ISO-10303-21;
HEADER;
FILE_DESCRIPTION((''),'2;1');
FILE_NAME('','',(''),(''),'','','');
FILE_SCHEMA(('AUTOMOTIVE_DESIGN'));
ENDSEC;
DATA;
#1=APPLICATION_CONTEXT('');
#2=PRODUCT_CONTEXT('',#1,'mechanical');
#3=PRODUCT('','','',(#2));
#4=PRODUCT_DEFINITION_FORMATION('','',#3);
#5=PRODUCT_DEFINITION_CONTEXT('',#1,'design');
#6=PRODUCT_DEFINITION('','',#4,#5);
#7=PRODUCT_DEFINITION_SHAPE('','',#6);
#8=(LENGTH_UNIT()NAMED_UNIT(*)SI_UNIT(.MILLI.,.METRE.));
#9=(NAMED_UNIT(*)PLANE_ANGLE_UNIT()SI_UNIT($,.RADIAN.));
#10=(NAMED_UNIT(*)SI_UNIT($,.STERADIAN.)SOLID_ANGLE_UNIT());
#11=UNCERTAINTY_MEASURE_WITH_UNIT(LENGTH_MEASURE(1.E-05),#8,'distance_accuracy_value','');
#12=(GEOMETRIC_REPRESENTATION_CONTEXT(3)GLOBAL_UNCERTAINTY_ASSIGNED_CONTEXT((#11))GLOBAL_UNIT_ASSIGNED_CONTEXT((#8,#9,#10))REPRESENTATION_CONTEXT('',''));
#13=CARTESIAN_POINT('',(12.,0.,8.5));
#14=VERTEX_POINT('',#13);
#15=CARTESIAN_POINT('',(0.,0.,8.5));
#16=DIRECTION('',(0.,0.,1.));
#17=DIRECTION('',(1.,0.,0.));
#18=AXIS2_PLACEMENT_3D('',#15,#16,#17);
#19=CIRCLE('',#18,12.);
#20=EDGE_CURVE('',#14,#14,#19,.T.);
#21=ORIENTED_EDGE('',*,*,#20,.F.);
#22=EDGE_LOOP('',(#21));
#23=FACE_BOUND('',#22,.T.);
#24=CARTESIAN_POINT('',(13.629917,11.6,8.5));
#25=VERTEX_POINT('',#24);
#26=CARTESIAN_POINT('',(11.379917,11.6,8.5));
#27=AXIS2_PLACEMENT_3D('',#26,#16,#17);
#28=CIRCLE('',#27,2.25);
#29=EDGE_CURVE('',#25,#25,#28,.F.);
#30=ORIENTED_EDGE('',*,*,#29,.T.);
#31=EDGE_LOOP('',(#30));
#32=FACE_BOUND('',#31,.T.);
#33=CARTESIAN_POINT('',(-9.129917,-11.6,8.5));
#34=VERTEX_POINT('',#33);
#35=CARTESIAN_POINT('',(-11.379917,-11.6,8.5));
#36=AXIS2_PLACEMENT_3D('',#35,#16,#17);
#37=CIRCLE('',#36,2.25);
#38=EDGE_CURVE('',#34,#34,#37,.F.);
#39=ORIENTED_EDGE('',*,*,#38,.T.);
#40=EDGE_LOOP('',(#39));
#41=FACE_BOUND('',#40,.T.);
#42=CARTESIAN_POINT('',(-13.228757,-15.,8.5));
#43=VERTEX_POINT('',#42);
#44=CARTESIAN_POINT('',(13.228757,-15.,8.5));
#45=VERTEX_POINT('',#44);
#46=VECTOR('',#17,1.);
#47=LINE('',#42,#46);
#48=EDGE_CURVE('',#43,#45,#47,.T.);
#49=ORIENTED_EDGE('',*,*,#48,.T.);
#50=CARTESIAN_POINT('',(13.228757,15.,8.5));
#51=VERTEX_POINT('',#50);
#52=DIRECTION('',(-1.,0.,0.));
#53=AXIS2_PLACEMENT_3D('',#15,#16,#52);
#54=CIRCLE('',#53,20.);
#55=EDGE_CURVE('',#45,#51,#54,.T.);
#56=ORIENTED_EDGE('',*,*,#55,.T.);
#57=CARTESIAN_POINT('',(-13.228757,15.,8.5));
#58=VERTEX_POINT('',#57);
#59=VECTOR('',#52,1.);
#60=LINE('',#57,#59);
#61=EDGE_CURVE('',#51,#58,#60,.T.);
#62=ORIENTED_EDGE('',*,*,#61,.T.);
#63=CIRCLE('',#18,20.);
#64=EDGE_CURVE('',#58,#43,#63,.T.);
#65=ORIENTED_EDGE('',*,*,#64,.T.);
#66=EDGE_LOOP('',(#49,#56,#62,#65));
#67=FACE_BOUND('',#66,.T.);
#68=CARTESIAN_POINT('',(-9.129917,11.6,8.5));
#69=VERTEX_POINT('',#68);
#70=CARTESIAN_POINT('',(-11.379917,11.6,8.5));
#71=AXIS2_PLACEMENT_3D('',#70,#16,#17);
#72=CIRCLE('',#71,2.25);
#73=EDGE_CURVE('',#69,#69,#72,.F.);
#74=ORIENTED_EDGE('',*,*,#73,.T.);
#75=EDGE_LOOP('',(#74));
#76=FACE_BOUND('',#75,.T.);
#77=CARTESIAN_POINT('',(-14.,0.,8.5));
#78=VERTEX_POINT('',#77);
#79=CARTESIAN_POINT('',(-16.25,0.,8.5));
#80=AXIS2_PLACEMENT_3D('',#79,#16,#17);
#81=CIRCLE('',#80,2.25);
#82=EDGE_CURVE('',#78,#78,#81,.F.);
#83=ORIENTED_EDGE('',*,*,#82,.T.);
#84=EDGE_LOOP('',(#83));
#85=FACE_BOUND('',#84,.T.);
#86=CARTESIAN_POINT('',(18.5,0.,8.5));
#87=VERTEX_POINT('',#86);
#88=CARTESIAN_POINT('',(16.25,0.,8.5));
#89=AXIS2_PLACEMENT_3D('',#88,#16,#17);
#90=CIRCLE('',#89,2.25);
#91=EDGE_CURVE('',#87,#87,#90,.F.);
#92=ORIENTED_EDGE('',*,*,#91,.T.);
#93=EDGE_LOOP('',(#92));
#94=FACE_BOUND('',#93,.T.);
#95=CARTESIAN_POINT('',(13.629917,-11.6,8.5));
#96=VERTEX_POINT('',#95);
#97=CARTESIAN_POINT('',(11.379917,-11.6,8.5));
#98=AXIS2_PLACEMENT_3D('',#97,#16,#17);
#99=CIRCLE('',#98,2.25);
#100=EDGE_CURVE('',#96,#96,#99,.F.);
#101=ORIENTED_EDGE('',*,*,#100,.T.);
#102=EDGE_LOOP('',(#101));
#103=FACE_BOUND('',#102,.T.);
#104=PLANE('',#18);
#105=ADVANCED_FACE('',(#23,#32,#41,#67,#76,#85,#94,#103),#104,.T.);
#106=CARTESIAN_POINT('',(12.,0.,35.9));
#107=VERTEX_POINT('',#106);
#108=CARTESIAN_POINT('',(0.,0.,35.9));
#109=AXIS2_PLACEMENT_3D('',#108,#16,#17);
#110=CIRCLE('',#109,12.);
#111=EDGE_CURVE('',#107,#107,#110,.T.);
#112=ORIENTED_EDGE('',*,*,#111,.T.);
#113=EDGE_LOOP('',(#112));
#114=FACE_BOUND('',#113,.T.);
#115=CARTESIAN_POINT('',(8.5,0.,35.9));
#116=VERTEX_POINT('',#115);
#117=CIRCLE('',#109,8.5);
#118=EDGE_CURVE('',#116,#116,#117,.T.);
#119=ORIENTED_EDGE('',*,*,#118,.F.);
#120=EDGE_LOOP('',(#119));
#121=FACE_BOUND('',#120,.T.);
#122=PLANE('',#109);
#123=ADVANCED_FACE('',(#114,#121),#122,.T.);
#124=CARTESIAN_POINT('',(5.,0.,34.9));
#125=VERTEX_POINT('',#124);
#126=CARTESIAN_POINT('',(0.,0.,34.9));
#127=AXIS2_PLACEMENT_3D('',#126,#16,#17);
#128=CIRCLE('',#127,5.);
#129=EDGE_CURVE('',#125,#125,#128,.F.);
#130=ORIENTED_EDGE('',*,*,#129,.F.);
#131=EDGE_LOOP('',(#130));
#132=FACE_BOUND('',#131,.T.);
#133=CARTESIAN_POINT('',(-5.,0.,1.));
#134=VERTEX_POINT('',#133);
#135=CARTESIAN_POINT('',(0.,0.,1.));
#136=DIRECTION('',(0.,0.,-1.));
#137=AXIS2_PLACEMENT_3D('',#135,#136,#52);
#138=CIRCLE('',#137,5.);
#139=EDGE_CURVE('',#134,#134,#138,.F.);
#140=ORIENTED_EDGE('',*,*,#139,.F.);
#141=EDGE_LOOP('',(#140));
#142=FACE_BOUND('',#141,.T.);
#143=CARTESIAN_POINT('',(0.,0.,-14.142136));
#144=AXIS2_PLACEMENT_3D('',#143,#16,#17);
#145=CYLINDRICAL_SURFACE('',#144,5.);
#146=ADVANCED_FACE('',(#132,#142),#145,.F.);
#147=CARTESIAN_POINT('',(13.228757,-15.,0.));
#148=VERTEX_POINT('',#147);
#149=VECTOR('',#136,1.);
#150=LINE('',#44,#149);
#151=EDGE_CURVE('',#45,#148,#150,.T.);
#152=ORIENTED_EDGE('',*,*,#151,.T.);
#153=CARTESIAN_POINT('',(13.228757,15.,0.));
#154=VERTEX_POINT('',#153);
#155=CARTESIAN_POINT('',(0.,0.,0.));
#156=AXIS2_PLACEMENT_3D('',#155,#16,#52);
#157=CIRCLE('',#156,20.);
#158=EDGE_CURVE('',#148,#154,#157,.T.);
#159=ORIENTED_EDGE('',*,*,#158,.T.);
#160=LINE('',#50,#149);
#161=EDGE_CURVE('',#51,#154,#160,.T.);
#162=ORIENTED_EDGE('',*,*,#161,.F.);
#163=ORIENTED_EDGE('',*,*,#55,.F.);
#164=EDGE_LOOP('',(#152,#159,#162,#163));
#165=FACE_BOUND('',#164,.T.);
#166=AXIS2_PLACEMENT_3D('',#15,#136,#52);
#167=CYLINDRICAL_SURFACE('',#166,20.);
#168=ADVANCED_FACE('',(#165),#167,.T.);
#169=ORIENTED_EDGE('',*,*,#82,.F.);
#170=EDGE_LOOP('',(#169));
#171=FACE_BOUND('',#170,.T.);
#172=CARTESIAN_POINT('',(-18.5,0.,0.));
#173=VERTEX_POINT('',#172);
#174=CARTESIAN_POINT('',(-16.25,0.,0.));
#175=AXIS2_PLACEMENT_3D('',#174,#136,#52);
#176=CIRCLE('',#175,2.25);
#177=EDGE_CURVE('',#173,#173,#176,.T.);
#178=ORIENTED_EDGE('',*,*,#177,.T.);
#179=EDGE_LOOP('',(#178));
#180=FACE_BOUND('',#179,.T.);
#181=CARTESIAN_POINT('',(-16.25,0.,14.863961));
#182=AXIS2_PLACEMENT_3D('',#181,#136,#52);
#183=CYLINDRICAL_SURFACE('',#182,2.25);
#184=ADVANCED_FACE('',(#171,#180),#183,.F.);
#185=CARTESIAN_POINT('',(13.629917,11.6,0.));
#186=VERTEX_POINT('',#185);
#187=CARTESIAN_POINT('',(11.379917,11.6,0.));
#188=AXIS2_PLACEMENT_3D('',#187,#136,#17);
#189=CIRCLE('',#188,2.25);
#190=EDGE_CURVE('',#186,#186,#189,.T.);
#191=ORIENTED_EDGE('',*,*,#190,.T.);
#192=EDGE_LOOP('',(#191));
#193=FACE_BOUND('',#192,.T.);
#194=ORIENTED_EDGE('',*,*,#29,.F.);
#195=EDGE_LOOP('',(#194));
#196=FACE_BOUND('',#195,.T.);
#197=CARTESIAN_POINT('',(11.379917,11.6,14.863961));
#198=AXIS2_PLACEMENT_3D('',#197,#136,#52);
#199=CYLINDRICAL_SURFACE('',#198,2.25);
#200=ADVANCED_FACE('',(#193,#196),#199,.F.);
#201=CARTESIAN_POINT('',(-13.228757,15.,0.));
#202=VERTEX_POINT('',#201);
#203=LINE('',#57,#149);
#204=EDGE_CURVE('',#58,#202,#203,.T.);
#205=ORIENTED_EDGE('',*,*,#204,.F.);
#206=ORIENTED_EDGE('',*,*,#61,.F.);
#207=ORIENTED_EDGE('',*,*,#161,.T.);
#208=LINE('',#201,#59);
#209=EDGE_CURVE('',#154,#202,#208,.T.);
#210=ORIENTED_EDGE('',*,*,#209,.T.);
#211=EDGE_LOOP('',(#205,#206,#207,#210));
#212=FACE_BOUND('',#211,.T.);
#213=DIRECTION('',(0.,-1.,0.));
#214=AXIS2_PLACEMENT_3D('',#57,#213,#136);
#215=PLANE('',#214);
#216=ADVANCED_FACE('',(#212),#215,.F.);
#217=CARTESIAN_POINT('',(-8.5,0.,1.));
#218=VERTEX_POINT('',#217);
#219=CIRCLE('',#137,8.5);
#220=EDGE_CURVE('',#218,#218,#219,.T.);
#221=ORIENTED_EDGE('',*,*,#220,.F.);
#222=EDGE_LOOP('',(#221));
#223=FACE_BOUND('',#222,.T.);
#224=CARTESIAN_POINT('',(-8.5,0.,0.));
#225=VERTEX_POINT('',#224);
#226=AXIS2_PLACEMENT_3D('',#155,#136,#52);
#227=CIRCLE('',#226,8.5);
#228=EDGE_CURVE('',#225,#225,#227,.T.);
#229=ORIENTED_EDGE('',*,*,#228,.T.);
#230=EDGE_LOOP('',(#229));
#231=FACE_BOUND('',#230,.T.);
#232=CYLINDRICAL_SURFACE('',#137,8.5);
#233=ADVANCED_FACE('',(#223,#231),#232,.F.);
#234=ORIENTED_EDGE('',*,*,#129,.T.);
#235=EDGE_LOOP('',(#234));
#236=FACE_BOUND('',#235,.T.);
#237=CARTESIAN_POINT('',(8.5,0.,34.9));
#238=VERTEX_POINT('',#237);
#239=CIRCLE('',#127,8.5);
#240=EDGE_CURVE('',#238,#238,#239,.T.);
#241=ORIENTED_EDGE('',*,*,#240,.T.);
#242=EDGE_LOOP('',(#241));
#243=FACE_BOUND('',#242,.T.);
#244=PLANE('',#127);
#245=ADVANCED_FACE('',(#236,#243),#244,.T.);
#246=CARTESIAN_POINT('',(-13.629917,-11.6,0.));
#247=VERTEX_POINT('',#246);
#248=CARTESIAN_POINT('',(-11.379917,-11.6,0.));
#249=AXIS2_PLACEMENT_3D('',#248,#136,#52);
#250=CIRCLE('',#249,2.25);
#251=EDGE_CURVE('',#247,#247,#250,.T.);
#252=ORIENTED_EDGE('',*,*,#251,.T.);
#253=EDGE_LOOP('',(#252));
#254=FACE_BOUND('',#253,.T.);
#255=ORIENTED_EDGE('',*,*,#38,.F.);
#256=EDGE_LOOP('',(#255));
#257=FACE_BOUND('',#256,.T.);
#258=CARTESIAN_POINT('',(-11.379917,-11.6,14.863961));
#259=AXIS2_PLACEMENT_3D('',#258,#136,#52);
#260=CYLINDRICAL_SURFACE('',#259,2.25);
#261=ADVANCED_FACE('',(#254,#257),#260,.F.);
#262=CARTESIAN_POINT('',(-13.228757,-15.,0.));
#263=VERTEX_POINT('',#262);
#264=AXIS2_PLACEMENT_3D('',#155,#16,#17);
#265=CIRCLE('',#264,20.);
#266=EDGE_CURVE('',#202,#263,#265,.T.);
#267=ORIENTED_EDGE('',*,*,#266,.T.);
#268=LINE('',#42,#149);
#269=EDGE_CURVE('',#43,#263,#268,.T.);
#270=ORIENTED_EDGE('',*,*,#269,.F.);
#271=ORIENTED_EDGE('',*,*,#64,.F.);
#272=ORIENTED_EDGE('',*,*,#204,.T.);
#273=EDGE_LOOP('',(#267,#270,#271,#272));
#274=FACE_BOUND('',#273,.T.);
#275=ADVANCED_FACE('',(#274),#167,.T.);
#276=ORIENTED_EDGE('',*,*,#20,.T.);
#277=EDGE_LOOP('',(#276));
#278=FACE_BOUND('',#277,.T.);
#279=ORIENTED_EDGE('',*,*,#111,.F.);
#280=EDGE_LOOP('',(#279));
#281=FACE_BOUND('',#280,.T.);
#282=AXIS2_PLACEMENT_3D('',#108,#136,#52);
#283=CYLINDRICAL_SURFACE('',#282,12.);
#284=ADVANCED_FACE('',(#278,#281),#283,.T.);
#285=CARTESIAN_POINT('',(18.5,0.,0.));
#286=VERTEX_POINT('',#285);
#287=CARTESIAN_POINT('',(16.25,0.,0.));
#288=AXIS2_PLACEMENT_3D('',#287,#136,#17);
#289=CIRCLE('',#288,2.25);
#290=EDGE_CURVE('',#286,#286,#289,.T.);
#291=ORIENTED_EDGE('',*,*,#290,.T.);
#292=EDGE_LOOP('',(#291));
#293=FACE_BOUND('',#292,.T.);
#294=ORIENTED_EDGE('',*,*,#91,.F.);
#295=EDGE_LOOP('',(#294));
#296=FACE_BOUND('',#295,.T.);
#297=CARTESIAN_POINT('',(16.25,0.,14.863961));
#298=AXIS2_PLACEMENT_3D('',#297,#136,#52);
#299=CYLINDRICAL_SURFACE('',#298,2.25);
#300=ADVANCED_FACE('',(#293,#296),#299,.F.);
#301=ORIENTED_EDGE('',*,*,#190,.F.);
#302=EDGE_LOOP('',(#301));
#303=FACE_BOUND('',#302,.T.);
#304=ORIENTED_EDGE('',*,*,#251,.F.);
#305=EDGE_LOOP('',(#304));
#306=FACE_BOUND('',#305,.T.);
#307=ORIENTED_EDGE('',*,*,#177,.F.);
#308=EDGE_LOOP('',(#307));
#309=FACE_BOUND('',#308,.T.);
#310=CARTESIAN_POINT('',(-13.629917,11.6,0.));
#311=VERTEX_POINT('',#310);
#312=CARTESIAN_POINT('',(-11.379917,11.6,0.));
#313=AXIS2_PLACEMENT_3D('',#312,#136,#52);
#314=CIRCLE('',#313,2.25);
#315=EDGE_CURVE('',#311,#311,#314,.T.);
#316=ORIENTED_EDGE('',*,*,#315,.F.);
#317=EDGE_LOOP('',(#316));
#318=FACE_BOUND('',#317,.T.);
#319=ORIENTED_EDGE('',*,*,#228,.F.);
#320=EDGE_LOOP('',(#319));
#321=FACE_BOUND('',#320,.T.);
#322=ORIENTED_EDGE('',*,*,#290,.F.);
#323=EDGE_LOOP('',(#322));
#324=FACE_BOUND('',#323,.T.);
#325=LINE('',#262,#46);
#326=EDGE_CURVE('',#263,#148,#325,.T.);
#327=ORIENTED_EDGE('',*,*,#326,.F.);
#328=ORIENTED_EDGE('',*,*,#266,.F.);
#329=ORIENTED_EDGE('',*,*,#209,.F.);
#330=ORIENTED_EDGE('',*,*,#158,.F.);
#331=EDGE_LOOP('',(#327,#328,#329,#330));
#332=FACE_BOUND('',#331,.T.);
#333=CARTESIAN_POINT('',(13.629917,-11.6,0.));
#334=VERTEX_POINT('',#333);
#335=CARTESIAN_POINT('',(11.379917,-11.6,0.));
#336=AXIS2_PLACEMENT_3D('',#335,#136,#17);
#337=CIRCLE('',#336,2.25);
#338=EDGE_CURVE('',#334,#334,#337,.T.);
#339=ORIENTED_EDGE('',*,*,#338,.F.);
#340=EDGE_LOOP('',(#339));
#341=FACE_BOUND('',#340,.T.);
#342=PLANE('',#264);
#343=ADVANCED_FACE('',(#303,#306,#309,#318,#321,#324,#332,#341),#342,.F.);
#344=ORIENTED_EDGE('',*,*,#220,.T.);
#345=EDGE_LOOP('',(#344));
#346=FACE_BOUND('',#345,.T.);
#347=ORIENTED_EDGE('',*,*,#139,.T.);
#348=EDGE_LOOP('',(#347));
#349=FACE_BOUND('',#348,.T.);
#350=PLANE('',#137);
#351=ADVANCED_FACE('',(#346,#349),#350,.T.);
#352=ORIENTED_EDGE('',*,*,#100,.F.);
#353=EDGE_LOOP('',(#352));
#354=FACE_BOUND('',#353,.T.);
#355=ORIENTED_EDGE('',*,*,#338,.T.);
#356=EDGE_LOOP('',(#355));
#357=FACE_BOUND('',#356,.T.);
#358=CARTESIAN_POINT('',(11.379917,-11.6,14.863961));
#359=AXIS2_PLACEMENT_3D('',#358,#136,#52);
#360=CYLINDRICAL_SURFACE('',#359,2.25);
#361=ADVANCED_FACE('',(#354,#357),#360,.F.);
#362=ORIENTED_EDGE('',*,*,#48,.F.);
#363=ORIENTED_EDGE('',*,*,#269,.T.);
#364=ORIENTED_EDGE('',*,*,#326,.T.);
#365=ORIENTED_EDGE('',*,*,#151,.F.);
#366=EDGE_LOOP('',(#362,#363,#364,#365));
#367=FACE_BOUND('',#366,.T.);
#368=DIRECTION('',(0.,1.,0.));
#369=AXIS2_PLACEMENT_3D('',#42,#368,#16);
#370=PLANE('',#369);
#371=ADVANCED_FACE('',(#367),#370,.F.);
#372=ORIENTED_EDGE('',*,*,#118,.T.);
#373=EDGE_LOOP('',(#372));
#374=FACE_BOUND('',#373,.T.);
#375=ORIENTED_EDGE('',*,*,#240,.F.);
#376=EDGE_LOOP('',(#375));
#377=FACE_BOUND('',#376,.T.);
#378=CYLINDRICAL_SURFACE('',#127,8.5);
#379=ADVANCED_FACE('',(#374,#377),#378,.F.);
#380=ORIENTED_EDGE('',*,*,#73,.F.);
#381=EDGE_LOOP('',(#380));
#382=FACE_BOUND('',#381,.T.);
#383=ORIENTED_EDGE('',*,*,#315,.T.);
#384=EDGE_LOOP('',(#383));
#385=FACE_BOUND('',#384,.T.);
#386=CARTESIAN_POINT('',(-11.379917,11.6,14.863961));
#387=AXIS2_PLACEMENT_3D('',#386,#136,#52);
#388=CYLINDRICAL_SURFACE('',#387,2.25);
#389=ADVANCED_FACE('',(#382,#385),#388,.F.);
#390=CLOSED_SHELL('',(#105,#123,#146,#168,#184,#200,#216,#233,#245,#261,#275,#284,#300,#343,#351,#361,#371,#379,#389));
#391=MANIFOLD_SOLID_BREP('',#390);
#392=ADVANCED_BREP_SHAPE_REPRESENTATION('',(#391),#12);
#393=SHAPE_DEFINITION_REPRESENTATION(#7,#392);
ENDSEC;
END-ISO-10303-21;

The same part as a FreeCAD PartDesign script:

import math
import FreeCAD as App
import Part
import Sketcher

V = App.Vector

doc = App.newDocument("Part")
body = doc.addObject("PartDesign::Body", "Body")

# Sketch on XY plane
sketch1 = body.newObject("Sketcher::SketchObject", "Sketch")
sketch1.AttachmentSupport = (doc.getObject("XY_Plane"), [""])
sketch1.MapMode = "FlatFace"
sketch1.addGeometry(Part.LineSegment(V(13, 15, 0), V(-13, 15, 0)), False)
sketch1.addGeometry(Part.ArcOfCircle(Part.Circle(V(0, 0, 0), V(0, 0, 1), 20), math.radians(131), math.radians(229)), False)
sketch1.addGeometry(Part.LineSegment(V(-13, -15, 0), V(13, -15, 0)), False)
sketch1.addGeometry(Part.ArcOfCircle(Part.Circle(V(0, 0, 0), V(0, 0, 1), 20), math.radians(-49), math.radians(49)), False)
sketch1.addConstraint(Sketcher.Constraint("Coincident", 0, 2, 1, 1))
sketch1.addConstraint(Sketcher.Constraint("Coincident", 1, 2, 2, 1))
sketch1.addConstraint(Sketcher.Constraint("Coincident", 2, 2, 3, 1))
sketch1.addConstraint(Sketcher.Constraint("Coincident", 3, 2, 0, 1))
sketch1.addConstraint(Sketcher.Constraint("Horizontal", 0))
sketch1.addConstraint(Sketcher.Constraint("Horizontal", 2))
sketch1.addConstraint(Sketcher.Constraint("Coincident", 1, 3, -1, 1))
sketch1.addConstraint(Sketcher.Constraint("Coincident", 3, 3, -1, 1))
sketch1.addConstraint(Sketcher.Constraint("Equal", 1, 3))
sketch1.addConstraint(Sketcher.Constraint("Vertical", 0, 2, 1, 2))
sketch1.addConstraint(Sketcher.Constraint("Radius", 1, 20.0))
sketch1.addConstraint(Sketcher.Constraint("DistanceY", -1, 1, 0, 2, 15.0))
pad1 = body.newObject("PartDesign::Pad", "Pad")
pad1.Profile = sketch1
pad1.Length = 8.5

# Sketch on XY plane
sketch2 = body.newObject("Sketcher::SketchObject", "Sketch001")
sketch2.AttachmentSupport = (doc.getObject("XY_Plane"), [""])
sketch2.MapMode = "FlatFace"
sketch2.AttachmentOffset = App.Placement(V(0, 0, 8.5), App.Rotation())
sketch2.addGeometry(Part.Circle(V(0, 0, 0), V(0, 0, 1), 12), False)
sketch2.addConstraint(Sketcher.Constraint("Coincident", 0, 3, -1, 1))
sketch2.addConstraint(Sketcher.Constraint("Diameter", 0, 24.0))
pad2 = body.newObject("PartDesign::Pad", "Pad001")
pad2.Profile = sketch2
pad2.Length = 27.4

# Sketch on XY plane
sketch3 = body.newObject("Sketcher::SketchObject", "Sketch002")
sketch3.AttachmentSupport = (doc.getObject("XY_Plane"), [""])
sketch3.MapMode = "FlatFace"
sketch3.AttachmentOffset = App.Placement(V(0, 0, 35.9), App.Rotation())
sketch3.addGeometry(Part.Circle(V(0, 0, 0), V(0, 0, 1), 5), False)
sketch3.addConstraint(Sketcher.Constraint("Coincident", 0, 3, -1, 1))
sketch3.addConstraint(Sketcher.Constraint("Diameter", 0, 10.0))
pocket1 = body.newObject("PartDesign::Pocket", "Pocket")
pocket1.Profile = sketch3
pocket1.Length = 35.9

# Sketch on XY plane
sketch4 = body.newObject("Sketcher::SketchObject", "Sketch003")
sketch4.AttachmentSupport = (doc.getObject("XY_Plane"), [""])
sketch4.MapMode = "FlatFace"
sketch4.AttachmentOffset = App.Placement(V(0, 0, 35.9), App.Rotation())
sketch4.addGeometry(Part.Circle(V(0, 0, 0), V(0, 0, 1), 8), False)
sketch4.addConstraint(Sketcher.Constraint("Coincident", 0, 3, -1, 1))
sketch4.addConstraint(Sketcher.Constraint("Diameter", 0, 17.0))
pocket2 = body.newObject("PartDesign::Pocket", "Pocket001")
pocket2.Profile = sketch4
pocket2.Length = 1

# Sketch on XY plane
sketch5 = body.newObject("Sketcher::SketchObject", "Sketch004")
sketch5.AttachmentSupport = (doc.getObject("XY_Plane"), [""])
sketch5.MapMode = "FlatFace"
sketch5.addGeometry(Part.Circle(V(0, 0, 0), V(0, 0, 1), 8), False)
sketch5.addConstraint(Sketcher.Constraint("Coincident", 0, 3, -1, 1))
sketch5.addConstraint(Sketcher.Constraint("Diameter", 0, 17.0))
pocket3 = body.newObject("PartDesign::Pocket", "Pocket002")
pocket3.Profile = sketch5
pocket3.Length = 1
pocket3.Reversed = True

# Sketch on XY plane
sketch6 = body.newObject("Sketcher::SketchObject", "Sketch005")
sketch6.AttachmentSupport = (doc.getObject("XY_Plane"), [""])
sketch6.MapMode = "FlatFace"
sketch6.addGeometry(Part.Circle(V(-11.4, -11.6, 0), V(0, 0, 1), 2.2), False)
sketch6.addGeometry(Part.Circle(V(-16.2, 0, 0), V(0, 0, 1), 2.2), False)
sketch6.addGeometry(Part.Circle(V(-11.4, 11.6, 0), V(0, 0, 1), 2.2), False)
sketch6.addGeometry(Part.Circle(V(11.4, -11.6, 0), V(0, 0, 1), 2.2), False)
sketch6.addGeometry(Part.Circle(V(16.2, 0, 0), V(0, 0, 1), 2.2), False)
sketch6.addGeometry(Part.Circle(V(11.4, 11.6, 0), V(0, 0, 1), 2.2), False)
sketch6.addConstraint(Sketcher.Constraint("Equal", 0, 1))
sketch6.addConstraint(Sketcher.Constraint("Equal", 1, 2))
sketch6.addConstraint(Sketcher.Constraint("Equal", 2, 3))
sketch6.addConstraint(Sketcher.Constraint("Equal", 3, 4))
sketch6.addConstraint(Sketcher.Constraint("Equal", 4, 5))
sketch6.addConstraint(Sketcher.Constraint("Symmetric", 2, 3, 3, 3, -1, 1))
sketch6.addConstraint(Sketcher.Constraint("Symmetric", 1, 3, 4, 3, -1, 1))
sketch6.addConstraint(Sketcher.Constraint("Symmetric", 0, 3, 5, 3, -1, 1))
sketch6.addConstraint(Sketcher.Constraint("Symmetric", 0, 3, 3, 3, -2))
sketch6.addConstraint(Sketcher.Constraint("PointOnObject", 1, 3, -1))
sketch6.addConstraint(Sketcher.Constraint("Diameter", 0, 4.5))
sketch6.addConstraint(Sketcher.Constraint("DistanceY", 0, 3, -1, 1, 11.6))
sketch6.addConstraint(Sketcher.Constraint("DistanceX", 1, 3, 4, 3, 32.5))
sketch6.addConstraint(Sketcher.Constraint("DistanceX", 0, 3, -1, 1, 11.379917))
pocket4 = body.newObject("PartDesign::Pocket", "Pocket003")
pocket4.Profile = sketch6
pocket4.Length = 8.5
pocket4.Reversed = True

doc.recompute()
